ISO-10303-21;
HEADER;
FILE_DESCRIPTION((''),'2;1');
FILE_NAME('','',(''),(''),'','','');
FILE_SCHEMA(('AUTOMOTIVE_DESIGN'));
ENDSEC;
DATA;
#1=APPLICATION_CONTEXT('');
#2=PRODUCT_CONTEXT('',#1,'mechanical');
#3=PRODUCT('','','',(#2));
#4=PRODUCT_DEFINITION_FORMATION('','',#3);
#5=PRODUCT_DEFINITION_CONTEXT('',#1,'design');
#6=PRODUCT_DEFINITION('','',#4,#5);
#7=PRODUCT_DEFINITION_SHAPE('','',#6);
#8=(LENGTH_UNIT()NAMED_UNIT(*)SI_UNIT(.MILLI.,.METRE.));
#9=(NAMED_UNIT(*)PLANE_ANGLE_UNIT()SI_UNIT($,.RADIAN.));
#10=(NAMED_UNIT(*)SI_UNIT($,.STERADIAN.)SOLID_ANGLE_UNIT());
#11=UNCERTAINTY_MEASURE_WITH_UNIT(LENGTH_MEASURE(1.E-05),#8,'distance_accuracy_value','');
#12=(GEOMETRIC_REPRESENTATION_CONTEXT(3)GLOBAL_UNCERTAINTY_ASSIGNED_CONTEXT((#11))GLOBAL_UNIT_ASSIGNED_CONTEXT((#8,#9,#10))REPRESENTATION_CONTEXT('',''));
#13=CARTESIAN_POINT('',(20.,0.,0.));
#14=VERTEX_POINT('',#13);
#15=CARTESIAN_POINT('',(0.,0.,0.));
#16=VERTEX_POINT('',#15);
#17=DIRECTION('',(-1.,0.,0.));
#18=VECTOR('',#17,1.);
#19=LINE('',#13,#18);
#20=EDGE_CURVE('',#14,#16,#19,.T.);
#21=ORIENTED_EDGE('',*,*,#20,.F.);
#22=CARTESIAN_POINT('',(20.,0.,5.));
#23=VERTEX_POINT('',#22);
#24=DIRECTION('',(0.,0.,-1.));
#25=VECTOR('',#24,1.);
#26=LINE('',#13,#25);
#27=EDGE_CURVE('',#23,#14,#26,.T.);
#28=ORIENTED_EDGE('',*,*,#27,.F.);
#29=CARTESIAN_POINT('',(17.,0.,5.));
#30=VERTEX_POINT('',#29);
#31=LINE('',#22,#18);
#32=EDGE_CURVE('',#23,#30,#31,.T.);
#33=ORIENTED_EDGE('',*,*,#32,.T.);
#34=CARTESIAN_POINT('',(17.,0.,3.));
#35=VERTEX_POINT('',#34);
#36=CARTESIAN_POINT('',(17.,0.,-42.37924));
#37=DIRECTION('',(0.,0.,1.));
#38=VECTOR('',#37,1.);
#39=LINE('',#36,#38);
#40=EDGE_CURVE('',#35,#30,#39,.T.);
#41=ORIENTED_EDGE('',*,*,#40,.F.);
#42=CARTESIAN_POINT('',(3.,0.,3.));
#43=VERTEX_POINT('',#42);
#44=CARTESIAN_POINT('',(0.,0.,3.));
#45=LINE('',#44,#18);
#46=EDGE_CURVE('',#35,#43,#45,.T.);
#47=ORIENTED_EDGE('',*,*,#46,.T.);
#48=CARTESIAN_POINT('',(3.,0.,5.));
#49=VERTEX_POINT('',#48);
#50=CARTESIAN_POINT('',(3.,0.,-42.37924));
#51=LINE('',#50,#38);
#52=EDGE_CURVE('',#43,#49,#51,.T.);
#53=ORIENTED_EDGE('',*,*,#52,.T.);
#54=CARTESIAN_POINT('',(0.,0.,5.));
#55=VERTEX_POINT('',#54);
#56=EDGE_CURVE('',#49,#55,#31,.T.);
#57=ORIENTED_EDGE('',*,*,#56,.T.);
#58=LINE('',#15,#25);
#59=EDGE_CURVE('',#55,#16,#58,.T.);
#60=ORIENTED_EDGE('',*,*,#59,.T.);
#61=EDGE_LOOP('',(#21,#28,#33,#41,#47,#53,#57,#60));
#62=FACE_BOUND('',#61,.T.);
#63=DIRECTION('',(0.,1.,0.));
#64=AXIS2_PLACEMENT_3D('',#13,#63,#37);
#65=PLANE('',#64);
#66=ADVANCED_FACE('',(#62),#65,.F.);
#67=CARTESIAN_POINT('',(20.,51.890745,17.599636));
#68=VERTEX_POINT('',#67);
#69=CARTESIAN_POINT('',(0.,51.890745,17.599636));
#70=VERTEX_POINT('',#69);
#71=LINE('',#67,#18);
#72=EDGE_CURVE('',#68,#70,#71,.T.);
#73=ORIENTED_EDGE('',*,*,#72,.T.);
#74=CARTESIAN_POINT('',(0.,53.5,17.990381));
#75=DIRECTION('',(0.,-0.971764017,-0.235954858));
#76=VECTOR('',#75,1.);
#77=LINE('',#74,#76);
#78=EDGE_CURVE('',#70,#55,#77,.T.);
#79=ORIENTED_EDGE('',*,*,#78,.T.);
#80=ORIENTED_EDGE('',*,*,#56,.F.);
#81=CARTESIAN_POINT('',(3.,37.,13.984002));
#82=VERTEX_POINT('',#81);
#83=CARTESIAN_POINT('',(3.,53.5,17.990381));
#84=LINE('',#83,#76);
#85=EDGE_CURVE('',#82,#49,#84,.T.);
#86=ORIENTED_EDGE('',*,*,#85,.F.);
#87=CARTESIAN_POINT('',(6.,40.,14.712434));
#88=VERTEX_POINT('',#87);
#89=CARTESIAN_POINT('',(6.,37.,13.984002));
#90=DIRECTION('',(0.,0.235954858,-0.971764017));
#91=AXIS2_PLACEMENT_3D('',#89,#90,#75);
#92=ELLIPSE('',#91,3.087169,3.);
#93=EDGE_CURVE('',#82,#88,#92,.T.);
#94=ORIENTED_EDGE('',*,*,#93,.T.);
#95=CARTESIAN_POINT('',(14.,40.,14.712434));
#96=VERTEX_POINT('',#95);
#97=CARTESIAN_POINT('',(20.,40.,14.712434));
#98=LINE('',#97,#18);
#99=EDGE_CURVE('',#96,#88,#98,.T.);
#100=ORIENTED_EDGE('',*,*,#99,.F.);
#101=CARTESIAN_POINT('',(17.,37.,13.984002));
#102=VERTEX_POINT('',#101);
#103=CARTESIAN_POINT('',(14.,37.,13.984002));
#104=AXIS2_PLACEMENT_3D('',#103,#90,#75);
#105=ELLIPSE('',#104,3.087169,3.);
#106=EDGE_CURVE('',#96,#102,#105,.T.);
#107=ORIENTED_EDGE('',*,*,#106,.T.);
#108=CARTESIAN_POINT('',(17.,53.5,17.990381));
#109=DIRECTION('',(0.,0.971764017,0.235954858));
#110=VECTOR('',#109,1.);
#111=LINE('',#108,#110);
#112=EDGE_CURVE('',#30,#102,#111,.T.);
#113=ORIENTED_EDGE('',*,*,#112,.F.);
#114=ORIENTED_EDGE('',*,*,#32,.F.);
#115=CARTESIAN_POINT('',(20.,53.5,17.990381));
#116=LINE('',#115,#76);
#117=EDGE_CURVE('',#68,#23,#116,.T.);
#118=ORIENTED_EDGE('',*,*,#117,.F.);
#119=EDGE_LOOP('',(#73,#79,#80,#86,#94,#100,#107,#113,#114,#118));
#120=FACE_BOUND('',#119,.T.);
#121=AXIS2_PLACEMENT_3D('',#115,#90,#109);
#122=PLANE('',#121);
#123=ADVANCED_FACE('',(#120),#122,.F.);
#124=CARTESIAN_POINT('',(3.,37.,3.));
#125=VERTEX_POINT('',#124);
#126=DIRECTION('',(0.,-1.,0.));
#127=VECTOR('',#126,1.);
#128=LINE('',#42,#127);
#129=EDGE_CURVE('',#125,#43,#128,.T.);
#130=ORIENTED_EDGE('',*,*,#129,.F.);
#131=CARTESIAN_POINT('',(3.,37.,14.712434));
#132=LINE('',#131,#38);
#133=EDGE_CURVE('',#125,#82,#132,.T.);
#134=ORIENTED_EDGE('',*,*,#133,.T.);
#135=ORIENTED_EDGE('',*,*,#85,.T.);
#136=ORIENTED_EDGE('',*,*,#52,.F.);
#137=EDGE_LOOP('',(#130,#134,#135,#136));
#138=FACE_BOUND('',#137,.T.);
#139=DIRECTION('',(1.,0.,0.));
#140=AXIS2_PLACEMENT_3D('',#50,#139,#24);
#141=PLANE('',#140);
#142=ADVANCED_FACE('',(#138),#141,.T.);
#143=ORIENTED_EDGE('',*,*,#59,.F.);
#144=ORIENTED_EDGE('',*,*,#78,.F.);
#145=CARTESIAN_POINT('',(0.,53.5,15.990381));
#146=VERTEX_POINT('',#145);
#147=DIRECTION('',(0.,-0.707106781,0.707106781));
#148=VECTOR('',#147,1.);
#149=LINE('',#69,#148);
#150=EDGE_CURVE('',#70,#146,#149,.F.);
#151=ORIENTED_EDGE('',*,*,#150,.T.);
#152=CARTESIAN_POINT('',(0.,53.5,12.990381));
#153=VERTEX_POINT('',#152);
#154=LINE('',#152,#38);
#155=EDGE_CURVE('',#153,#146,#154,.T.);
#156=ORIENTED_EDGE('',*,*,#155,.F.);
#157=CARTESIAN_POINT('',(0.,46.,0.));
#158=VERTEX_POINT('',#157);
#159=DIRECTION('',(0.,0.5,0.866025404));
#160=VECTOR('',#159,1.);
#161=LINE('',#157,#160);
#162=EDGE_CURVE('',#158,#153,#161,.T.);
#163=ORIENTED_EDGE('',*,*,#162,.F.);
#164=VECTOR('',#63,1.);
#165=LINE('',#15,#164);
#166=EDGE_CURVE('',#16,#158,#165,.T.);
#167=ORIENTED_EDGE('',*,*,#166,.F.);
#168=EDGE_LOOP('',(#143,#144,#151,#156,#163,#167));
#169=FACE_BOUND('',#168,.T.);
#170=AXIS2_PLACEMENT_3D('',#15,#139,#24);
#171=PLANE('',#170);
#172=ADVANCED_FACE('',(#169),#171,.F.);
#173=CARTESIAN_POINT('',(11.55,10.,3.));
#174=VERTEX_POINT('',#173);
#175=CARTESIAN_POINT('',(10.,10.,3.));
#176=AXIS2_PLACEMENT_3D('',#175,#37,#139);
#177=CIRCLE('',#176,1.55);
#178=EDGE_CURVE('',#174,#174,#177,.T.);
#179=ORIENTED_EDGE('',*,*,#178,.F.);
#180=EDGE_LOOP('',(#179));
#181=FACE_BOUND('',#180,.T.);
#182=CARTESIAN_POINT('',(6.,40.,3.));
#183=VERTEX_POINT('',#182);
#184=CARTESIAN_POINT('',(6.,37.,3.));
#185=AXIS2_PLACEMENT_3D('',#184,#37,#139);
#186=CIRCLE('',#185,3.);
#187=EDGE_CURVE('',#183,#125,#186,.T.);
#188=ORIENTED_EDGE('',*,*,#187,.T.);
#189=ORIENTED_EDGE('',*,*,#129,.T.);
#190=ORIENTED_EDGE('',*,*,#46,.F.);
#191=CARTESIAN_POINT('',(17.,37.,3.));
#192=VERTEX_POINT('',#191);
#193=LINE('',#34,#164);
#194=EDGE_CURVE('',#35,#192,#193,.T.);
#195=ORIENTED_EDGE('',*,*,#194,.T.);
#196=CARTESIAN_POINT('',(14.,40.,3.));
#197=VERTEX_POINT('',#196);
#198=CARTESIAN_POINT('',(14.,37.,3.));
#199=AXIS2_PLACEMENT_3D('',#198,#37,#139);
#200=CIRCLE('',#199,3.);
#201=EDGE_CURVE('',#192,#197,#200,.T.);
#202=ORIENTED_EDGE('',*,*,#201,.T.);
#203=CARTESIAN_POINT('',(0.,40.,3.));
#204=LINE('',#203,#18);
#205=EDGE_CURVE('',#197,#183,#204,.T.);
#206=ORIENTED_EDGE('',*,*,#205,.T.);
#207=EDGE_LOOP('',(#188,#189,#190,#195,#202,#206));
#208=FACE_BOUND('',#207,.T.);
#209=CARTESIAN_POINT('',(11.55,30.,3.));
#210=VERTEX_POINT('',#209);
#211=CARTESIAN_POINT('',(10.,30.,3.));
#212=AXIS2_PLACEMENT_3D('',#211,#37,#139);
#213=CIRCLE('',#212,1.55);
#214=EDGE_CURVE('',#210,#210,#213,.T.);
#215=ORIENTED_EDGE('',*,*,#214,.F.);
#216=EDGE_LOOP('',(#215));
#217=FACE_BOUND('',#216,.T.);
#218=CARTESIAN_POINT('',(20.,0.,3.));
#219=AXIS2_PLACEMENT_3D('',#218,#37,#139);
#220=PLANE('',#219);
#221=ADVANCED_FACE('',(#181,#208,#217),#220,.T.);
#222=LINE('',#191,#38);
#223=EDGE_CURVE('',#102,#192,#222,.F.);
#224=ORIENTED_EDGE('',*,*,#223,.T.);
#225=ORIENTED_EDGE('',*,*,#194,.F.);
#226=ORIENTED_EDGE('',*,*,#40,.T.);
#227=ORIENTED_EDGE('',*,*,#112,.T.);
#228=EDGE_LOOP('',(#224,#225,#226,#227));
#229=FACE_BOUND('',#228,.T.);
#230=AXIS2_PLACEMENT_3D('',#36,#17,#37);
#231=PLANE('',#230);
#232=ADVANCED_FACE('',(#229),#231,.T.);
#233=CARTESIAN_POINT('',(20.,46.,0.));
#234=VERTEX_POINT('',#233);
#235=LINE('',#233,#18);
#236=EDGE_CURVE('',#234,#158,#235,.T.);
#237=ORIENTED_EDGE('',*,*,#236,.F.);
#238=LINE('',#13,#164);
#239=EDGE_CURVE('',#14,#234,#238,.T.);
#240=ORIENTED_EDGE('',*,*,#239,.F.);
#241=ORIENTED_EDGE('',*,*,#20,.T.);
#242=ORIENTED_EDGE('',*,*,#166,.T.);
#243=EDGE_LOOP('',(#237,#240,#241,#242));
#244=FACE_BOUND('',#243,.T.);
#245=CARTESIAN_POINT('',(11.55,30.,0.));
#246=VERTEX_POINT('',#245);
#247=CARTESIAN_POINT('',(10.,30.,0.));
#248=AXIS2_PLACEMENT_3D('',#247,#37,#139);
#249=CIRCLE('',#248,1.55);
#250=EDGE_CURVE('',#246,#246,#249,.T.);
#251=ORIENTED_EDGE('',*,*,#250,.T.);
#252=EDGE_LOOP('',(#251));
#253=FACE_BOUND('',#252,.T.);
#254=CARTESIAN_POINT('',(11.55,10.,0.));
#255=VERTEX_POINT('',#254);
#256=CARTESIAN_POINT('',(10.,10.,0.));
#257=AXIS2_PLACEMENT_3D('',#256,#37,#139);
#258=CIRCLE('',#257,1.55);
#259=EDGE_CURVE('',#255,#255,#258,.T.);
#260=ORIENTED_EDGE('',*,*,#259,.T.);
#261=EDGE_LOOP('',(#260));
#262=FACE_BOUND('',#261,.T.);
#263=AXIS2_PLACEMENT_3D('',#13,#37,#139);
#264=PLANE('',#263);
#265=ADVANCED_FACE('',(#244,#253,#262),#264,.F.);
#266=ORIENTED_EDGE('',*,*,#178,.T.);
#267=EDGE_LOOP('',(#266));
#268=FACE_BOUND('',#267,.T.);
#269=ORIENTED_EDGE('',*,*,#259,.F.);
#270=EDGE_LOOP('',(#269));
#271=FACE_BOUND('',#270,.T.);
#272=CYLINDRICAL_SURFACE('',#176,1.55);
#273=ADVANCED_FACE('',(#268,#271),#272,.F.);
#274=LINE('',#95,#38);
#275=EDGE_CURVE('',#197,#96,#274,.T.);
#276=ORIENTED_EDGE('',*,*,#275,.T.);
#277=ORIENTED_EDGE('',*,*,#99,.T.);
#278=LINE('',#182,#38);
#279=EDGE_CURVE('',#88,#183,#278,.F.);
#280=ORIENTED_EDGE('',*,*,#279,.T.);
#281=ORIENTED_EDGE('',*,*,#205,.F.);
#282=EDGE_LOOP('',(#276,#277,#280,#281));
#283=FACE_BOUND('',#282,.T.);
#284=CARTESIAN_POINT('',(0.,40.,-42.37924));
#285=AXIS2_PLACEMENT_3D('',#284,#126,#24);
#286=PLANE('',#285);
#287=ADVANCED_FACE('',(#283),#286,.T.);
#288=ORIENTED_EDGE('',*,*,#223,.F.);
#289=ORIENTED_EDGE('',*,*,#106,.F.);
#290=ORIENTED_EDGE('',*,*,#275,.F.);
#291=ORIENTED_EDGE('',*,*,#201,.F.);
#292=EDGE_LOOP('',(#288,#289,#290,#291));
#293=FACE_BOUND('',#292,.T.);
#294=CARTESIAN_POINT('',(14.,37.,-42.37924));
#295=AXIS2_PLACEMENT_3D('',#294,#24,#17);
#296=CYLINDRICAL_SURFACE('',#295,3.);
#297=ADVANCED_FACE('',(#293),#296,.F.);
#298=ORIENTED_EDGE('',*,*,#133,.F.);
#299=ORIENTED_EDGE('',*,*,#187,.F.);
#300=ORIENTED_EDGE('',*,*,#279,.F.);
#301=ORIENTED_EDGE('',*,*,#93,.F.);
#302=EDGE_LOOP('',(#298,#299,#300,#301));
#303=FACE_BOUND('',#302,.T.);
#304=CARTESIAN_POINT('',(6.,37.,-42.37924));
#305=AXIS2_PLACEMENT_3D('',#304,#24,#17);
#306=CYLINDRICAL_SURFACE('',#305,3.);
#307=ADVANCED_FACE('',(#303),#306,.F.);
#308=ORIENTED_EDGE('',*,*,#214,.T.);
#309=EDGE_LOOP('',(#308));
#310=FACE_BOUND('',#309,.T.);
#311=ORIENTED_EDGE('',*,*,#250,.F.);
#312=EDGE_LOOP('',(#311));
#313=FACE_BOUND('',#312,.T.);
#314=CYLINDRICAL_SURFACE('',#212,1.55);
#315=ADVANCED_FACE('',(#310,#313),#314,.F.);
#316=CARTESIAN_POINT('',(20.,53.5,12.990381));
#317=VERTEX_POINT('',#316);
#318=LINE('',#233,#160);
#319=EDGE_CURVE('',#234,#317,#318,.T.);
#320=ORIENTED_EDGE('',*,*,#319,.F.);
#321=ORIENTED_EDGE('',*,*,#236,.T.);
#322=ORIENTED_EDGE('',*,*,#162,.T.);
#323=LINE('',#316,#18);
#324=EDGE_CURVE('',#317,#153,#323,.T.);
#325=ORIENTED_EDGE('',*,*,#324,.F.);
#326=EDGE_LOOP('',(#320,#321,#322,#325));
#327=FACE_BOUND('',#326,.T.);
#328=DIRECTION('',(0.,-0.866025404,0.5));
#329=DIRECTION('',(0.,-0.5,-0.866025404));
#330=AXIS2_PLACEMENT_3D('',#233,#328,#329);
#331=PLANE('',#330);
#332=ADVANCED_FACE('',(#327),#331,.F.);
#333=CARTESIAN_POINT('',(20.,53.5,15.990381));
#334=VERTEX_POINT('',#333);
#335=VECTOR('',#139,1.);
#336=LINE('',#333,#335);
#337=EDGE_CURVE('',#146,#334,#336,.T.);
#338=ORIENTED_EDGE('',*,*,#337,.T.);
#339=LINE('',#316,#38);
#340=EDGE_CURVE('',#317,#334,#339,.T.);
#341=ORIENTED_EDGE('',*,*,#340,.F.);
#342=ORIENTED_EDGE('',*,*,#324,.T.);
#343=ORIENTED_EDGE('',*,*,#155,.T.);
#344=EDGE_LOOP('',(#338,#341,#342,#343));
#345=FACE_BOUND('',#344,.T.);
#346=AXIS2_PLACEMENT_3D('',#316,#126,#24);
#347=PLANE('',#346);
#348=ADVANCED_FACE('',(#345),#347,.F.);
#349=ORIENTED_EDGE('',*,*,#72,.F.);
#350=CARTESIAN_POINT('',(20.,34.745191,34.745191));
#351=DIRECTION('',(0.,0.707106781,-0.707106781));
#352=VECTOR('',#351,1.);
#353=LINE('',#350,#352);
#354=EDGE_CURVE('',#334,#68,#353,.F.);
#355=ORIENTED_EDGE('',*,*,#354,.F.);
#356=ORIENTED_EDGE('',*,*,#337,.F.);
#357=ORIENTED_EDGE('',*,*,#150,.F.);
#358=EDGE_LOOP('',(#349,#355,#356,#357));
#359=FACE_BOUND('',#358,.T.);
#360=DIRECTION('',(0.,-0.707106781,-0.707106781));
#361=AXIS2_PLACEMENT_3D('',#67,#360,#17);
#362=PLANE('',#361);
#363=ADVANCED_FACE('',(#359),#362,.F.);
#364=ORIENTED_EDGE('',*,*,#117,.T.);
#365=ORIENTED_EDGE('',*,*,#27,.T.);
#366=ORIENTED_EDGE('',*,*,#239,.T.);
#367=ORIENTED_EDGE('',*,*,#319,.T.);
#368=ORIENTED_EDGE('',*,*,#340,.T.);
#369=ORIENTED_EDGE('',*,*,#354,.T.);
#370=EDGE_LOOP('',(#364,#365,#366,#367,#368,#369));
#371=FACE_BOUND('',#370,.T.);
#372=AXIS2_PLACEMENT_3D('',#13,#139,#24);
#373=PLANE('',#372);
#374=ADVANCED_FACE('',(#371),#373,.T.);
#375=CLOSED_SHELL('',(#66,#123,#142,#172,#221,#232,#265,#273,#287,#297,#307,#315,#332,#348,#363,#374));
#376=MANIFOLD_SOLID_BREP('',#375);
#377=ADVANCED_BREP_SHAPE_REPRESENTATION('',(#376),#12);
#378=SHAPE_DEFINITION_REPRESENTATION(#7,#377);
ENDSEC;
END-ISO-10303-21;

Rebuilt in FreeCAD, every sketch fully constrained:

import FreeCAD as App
import Part
import Sketcher

V = App.Vector
Q = App.Units.Quantity


def edges_at(feature, points):
    """Names of the edges that pass closest to the given points."""
    edges = feature.Shape.Edges
    near = lambda p: min(range(len(edges)), key=lambda i: edges[i].distToShape(Part.Vertex(*p))[0])
    return sorted({f"Edge{near(p) + 1}" for p in points})


def add_polygon(sketch, points):
    """Adds a closed chain of lines whose ends are joined by coincident constraints."""
    first, n = sketch.GeometryCount, len(points)
    for a, b in zip(points, points[1:] + points[:1]):
        sketch.addGeometry(Part.LineSegment(App.Vector(*a, 0), App.Vector(*b, 0)), False)
    for i in range(n):
        sketch.addConstraint(Sketcher.Constraint("Coincident", first + i, 2, first + (i + 1) % n, 1))

doc = App.newDocument("Part")
body = doc.addObject("PartDesign::Body", "Body")

# Sketch on YZ plane
sketch1 = body.newObject("Sketcher::SketchObject", "Sketch")
sketch1.AttachmentSupport = (doc.getObject("YZ_Plane"), [""])
sketch1.MapMode = "FlatFace"
add_polygon(sketch1, [(0, 5), (0, 0), (46, 0), (54, 13), (54, 18)])  # lines 0-4
sketch1.addConstraint(Sketcher.Constraint("Vertical", 0))
sketch1.addConstraint(Sketcher.Constraint("Horizontal", 1))
sketch1.addConstraint(Sketcher.Constraint("Vertical", 3))
sketch1.addConstraint(Sketcher.Constraint("Coincident", 0, 2, -1, 1))
sketch1.addConstraint(Sketcher.Constraint("Equal", 0, 3))
sketch1.addConstraint(Sketcher.Constraint("DistanceX", 1, 1, 1, 2, Q("46 mm")))
sketch1.addConstraint(Sketcher.Constraint("DistanceY", 0, 2, 0, 1, Q("5 mm")))
sketch1.addConstraint(Sketcher.Constraint("Angle", 2, Q("60 deg")))
sketch1.addConstraint(Sketcher.Constraint("Distance", 2, Q("15 mm")))
pad1 = body.newObject("PartDesign::Pad", "Pad")
pad1.Profile = sketch1
pad1.Length = 20

# Sketch on XY plane
sketch2 = body.newObject("Sketcher::SketchObject", "Sketch001")
sketch2.AttachmentSupport = (doc.getObject("XY_Plane"), [""])
sketch2.MapMode = "FlatFace"
sketch2.AttachmentOffset = App.Placement(V(0, 0, 3), App.Rotation())
add_polygon(sketch2, [(3, 40), (3, 0), (17, 0), (17, 40)])  # lines 0-3
sketch2.addConstraint(Sketcher.Constraint("Vertical", 0))
sketch2.addConstraint(Sketcher.Constraint("Horizontal", 1))
sketch2.addConstraint(Sketcher.Constraint("Vertical", 2))
sketch2.addConstraint(Sketcher.Constraint("Horizontal", 3))
sketch2.addConstraint(Sketcher.Constraint("PointOnObject", 0, 2, -1))
sketch2.addConstraint(Sketcher.Constraint("DistanceX", 1, 1, 1, 2, Q("14 mm")))
sketch2.addConstraint(Sketcher.Constraint("DistanceY", 0, 2, 0, 1, Q("40 mm")))
sketch2.addConstraint(Sketcher.Constraint("DistanceX", -1, 1, 0, 2, Q("3 mm")))
pocket1 = body.newObject("PartDesign::Pocket", "Pocket")
pocket1.Profile = sketch2
pocket1.Length = 11.712434
pocket1.Reversed = True
doc.recompute()

fillet = body.newObject("PartDesign::Fillet", "Fillet")
fillet.Base = (pocket1, edges_at(pocket1, [(3, 40, 8.856), (17, 40, 8.856)]))
fillet.Radius = 3
doc.recompute()

chamfer = body.newObject("PartDesign::Chamfer", "Chamfer")
chamfer.Base = (fillet, edges_at(fillet, [(10, 53.5, 17.99)]))
chamfer.ChamferType = "Two distances"
chamfer.Size = 1.656015
chamfer.Size2 = 2

# Sketch on XY plane
sketch3 = body.newObject("Sketcher::SketchObject", "Sketch002")
sketch3.AttachmentSupport = (doc.getObject("XY_Plane"), [""])
sketch3.MapMode = "FlatFace"
sketch3.AttachmentOffset = App.Placement(V(0, 0, 3), App.Rotation())
sketch3.addGeometry(Part.Circle(V(10, 30, 0), V(0, 0, 1), 1.5), False)
sketch3.addGeometry(Part.Circle(V(10, 10, 0), V(0, 0, 1), 1.5), False)
sketch3.addConstraint(Sketcher.Constraint("Equal", 0, 1))
sketch3.addConstraint(Sketcher.Constraint("Vertical", 0, 3, 1, 3))
sketch3.addConstraint(Sketcher.Constraint("Diameter", 0, Q("3.1 mm")))
sketch3.addConstraint(Sketcher.Constraint("DistanceX", -1, 1, 0, 3, Q("10 mm")))
sketch3.addConstraint(Sketcher.Constraint("DistanceY", -1, 1, 0, 3, Q("30 mm")))
sketch3.addConstraint(Sketcher.Constraint("DistanceY", -1, 1, 1, 3, Q("10 mm")))
doc.recompute()
hole = body.newObject("PartDesign::Hole", "Hole")
hole.Profile = sketch3
hole.ThreadType = "None"
hole.Diameter = 3.1
hole.DepthType = "ThroughAll"

doc.recompute()
